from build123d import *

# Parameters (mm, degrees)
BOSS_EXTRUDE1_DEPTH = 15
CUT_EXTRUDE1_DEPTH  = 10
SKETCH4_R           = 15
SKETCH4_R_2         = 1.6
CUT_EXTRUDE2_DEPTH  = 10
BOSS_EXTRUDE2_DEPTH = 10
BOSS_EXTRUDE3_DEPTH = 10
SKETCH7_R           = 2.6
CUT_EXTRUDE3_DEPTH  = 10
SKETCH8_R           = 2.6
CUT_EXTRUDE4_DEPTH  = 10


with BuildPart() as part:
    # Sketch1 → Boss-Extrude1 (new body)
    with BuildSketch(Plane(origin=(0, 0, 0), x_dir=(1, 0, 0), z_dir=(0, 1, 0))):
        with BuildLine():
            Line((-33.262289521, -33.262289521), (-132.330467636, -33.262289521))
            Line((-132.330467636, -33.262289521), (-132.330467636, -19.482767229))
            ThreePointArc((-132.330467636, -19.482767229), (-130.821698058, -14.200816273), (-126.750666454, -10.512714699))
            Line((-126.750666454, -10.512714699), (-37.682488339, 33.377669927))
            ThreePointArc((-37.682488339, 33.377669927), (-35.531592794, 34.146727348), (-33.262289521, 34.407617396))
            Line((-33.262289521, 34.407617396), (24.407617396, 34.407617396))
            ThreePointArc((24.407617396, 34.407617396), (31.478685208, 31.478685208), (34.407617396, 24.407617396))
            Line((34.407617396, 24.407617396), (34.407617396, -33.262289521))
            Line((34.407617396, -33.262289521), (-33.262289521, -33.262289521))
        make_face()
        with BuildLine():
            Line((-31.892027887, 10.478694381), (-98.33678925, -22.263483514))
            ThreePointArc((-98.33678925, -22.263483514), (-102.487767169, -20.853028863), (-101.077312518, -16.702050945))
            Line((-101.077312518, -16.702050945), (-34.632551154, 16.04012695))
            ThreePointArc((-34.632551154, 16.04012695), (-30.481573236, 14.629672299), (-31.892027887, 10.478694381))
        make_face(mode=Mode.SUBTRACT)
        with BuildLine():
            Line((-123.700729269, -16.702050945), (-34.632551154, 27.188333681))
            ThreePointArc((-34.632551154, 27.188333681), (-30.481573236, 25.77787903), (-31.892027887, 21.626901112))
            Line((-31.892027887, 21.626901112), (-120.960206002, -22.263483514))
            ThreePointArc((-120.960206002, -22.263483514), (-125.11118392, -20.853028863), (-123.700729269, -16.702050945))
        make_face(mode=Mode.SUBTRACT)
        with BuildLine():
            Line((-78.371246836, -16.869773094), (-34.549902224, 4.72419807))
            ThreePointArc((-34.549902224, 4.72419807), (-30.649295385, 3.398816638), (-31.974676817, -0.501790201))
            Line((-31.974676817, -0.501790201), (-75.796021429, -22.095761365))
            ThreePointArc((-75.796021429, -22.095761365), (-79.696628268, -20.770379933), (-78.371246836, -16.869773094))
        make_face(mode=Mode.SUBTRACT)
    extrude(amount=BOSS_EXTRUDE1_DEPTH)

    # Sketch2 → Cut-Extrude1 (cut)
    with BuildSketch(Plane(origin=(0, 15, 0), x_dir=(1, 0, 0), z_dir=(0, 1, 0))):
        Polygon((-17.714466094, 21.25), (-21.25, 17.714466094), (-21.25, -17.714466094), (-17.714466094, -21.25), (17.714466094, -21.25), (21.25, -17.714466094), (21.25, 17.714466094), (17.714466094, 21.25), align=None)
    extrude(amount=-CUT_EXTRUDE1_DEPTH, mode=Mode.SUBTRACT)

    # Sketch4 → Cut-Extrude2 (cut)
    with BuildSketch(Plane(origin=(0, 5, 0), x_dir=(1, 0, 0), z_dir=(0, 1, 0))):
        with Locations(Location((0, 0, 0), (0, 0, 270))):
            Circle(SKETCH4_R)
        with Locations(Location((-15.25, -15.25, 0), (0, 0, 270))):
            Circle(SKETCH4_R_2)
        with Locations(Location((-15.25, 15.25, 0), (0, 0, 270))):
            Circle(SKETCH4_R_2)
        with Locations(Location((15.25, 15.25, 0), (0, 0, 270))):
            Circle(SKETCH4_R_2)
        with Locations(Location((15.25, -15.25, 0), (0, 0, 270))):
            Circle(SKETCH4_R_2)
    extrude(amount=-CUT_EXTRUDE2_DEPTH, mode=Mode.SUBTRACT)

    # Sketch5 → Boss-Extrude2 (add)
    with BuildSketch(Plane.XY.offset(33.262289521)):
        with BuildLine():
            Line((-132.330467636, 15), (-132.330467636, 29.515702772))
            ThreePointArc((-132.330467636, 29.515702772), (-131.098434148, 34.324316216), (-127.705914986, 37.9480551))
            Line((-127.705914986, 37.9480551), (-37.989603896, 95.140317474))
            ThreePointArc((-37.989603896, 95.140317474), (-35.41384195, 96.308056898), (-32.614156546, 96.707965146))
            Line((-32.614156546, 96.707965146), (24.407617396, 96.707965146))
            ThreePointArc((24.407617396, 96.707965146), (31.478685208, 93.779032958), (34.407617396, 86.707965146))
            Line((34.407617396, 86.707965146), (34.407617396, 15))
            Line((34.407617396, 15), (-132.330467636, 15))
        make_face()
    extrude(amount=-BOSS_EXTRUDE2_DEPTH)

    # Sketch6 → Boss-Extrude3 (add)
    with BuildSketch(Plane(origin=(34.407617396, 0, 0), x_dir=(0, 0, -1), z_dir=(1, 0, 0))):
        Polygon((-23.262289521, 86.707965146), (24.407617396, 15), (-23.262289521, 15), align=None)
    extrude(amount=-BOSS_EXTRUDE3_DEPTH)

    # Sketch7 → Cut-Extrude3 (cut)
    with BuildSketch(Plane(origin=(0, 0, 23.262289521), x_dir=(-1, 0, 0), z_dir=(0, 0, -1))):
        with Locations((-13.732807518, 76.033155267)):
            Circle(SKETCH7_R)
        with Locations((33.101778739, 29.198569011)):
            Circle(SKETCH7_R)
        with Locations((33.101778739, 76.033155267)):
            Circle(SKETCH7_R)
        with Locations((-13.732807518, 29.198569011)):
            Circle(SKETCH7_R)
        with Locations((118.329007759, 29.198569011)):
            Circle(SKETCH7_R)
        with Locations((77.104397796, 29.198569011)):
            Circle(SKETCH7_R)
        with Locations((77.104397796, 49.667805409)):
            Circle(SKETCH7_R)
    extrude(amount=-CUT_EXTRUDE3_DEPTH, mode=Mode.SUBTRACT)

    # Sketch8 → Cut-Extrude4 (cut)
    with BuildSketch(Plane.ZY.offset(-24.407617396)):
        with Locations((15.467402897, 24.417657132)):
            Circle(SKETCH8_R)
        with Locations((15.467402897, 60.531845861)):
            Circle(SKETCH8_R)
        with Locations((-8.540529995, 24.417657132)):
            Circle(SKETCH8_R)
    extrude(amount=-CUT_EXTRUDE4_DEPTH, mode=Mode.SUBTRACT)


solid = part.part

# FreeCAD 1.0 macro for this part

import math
import FreeCAD as App
import Part
import Sketcher

V = App.Vector

doc = App.newDocument("Part")
body = doc.addObject("PartDesign::Body", "Body")

# Sketch on XZ plane
sketch1 = body.newObject("Sketcher::SketchObject", "Sketch")
sketch1.AttachmentSupport = (doc.getObject("XZ_Plane"), [""])
sketch1.MapMode = "FlatFace"
sketch1.addGeometry([
    Part.LineSegment(V(-132.330468, 19.482767, 0), V(-132.330468, 33.26229, 0)),  # 0
    Part.LineSegment(V(-132.330468, 33.26229, 0), V(34.407617, 33.26229, 0)),  # 1
    Part.LineSegment(V(34.407617, 33.26229, 0), V(34.407617, -24.407617, 0)),  # 2
    Part.ArcOfCircle(Part.Circle(V(24.407617, -24.407617, 0), V(0, 0, 1), 10), math.radians(-90), math.radians(0)),  # 3
    Part.LineSegment(V(24.407617, -34.407617, 0), V(-33.26229, -34.407617, 0)),  # 4
    Part.ArcOfCircle(Part.Circle(V(-33.26229, -24.407617, 0), V(0, 0, 1), 10), math.radians(-116.232829), math.radians(-90)),  # 5
    Part.LineSegment(V(-37.682488, -33.37767, 0), V(-126.750666, 10.512715, 0)),  # 6
    Part.ArcOfCircle(Part.Circle(V(-122.330468, 19.482767, 0), V(0, 0, 1), 10), math.radians(-180), math.radians(-116.232829)),  # 7
    Part.LineSegment(V(-78.371247, 16.869773, 0), V(-34.549902, -4.724198, 0)),  # 8
    Part.ArcOfCircle(Part.Circle(V(-33.26229, -2.111204, 0), V(0, 0, 1), 2.91302), math.radians(-116.232829), math.radians(63.767171)),  # 9
    Part.LineSegment(V(-31.974677, 0.50179, 0), V(-75.796021, 22.095761, 0)),  # 10
    Part.ArcOfCircle(Part.Circle(V(-77.083634, 19.482767, 0), V(0, 0, 1), 2.91302), math.radians(63.767171), math.radians(243.767171)),  # 11
    Part.LineSegment(V(-31.892028, -10.478694, 0), V(-98.336789, 22.263484, 0)),  # 12
    Part.ArcOfCircle(Part.Circle(V(-99.707051, 19.482767, 0), V(0, 0, 1), 3.1), math.radians(63.767171), math.radians(243.767171)),  # 13
    Part.LineSegment(V(-101.077313, 16.702051, 0), V(-34.632551, -16.040127, 0)),  # 14
    Part.ArcOfCircle(Part.Circle(V(-33.26229, -13.259411, 0), V(0, 0, 1), 3.1), math.radians(-116.232829), math.radians(63.767171)),  # 15
    Part.LineSegment(V(-123.700729, 16.702051, 0), V(-34.632551, -27.188334, 0)),  # 16
    Part.ArcOfCircle(Part.Circle(V(-33.26229, -24.407617, 0), V(0, 0, 1), 3.1), math.radians(-116.232829), math.radians(63.767171)),  # 17
    Part.LineSegment(V(-31.892028, -21.626901, 0), V(-120.960206, 22.263484, 0)),  # 18
    Part.ArcOfCircle(Part.Circle(V(-122.330468, 19.482767, 0), V(0, 0, 1), 3.1), math.radians(63.767171), math.radians(243.767171)),  # 19
], False)
sketch1.addConstraint([
    Sketcher.Constraint("Coincident", 0, 2, 1, 1),
    Sketcher.Constraint("Coincident", 1, 2, 2, 1),
    Sketcher.Constraint("Tangent", 2, 2, 3, 2),
    Sketcher.Constraint("Tangent", 3, 1, 4, 1),
    Sketcher.Constraint("Tangent", 4, 2, 5, 2),
    Sketcher.Constraint("Tangent", 5, 1, 6, 1),
    Sketcher.Constraint("Tangent", 6, 2, 7, 2),
    Sketcher.Constraint("Tangent", 7, 1, 0, 1),
    Sketcher.Constraint("Tangent", 8, 2, 9, 1),
    Sketcher.Constraint("Tangent", 9, 2, 10, 1),
    Sketcher.Constraint("Tangent", 10, 2, 11, 1),
    Sketcher.Constraint("Tangent", 11, 2, 8, 1),
    Sketcher.Constraint("Tangent", 12, 2, 13, 1),
    Sketcher.Constraint("Tangent", 13, 2, 14, 1),
    Sketcher.Constraint("Tangent", 14, 2, 15, 1),
    Sketcher.Constraint("Tangent", 15, 2, 12, 1),
    Sketcher.Constraint("Tangent", 16, 2, 17, 1),
    Sketcher.Constraint("Tangent", 17, 2, 18, 1),
    Sketcher.Constraint("Tangent", 18, 2, 19, 1),
    Sketcher.Constraint("Tangent", 19, 2, 16, 1),
    Sketcher.Constraint("Vertical", 0),
    Sketcher.Constraint("Horizontal", 1),
    Sketcher.Constraint("Vertical", 2),
    Sketcher.Constraint("Horizontal", 4),
    Sketcher.Constraint("Coincident", 17, 3, 5, 3),
    Sketcher.Constraint("Coincident", 19, 3, 7, 3),
    Sketcher.Constraint("Equal", 3, 5),
    Sketcher.Constraint("Equal", 5, 7),
    Sketcher.Constraint("Equal", 9, 11),
    Sketcher.Constraint("Equal", 13, 15),
    Sketcher.Constraint("Equal", 15, 17),
    Sketcher.Constraint("Equal", 17, 19),
    Sketcher.Constraint("Parallel", 6, 8),
    Sketcher.Constraint("Parallel", 10, 12),
    Sketcher.Constraint("Horizontal", 7, 3, 11, 3),
    Sketcher.Constraint("Horizontal", 11, 3, 13, 3),
    Sketcher.Constraint("Vertical", 5, 3, 9, 3),
    Sketcher.Constraint("Vertical", 9, 3, 15, 3),
    Sketcher.Constraint("Equal", 4, 2),
    Sketcher.Constraint("Radius", 3, 10.0),
    Sketcher.Constraint("Radius", 13, 3.1),
    Sketcher.Constraint("Radius", 9, 2.91302),
    Sketcher.Constraint("DistanceY", 8, 2, -1, 1, 4.724198),
    Sketcher.Constraint("DistanceY", 17, 2, -1, 1, 21.626901),
    Sketcher.Constraint("DistanceY", 15, 3, 1, 2, 46.5217),
    Sketcher.Constraint("DistanceX", 5, 1, 4, 2, 4.420199),
    Sketcher.Constraint("DistanceY", 15, 3, 9, 2, 13.761201),
    Sketcher.Constraint("Distance", 8, 48.852941),
    Sketcher.Constraint("DistanceX", 5, 3, -1, 1, 33.26229),
])
pad1 = body.newObject("PartDesign::Pad", "Pad")
pad1.Profile = sketch1
pad1.Length = 15
pad1.Reversed = True

# Sketch on XZ plane
sketch2 = body.newObject("Sketcher::SketchObject", "Sketch001")
sketch2.AttachmentSupport = (doc.getObject("XZ_Plane"), [""])
sketch2.MapMode = "FlatFace"
sketch2.AttachmentOffset = App.Placement(V(0, 0, -15), App.Rotation())
sketch2.addGeometry([
    Part.LineSegment(V(-17.714466, -21.25, 0), V(-21.25, -17.714466, 0)),  # 0
    Part.LineSegment(V(-21.25, -17.714466, 0), V(-21.25, 17.714466, 0)),  # 1
    Part.LineSegment(V(-21.25, 17.714466, 0), V(-17.714466, 21.25, 0)),  # 2
    Part.LineSegment(V(-17.714466, 21.25, 0), V(17.714466, 21.25, 0)),  # 3
    Part.LineSegment(V(17.714466, 21.25, 0), V(21.25, 17.714466, 0)),  # 4
    Part.LineSegment(V(21.25, 17.714466, 0), V(21.25, -17.714466, 0)),  # 5
    Part.LineSegment(V(21.25, -17.714466, 0), V(17.714466, -21.25, 0)),  # 6
    Part.LineSegment(V(17.714466, -21.25, 0), V(-17.714466, -21.25, 0)),  # 7
], False)
sketch2.addConstraint([
    Sketcher.Constraint("Coincident", 0, 2, 1, 1),
    Sketcher.Constraint("Coincident", 1, 2, 2, 1),
    Sketcher.Constraint("Coincident", 2, 2, 3, 1),
    Sketcher.Constraint("Coincident", 3, 2, 4, 1),
    Sketcher.Constraint("Coincident", 4, 2, 5, 1),
    Sketcher.Constraint("Coincident", 5, 2, 6, 1),
    Sketcher.Constraint("Coincident", 6, 2, 7, 1),
    Sketcher.Constraint("Coincident", 7, 2, 0, 1),
    Sketcher.Constraint("Vertical", 1),
    Sketcher.Constraint("Horizontal", 3),
    Sketcher.Constraint("Vertical", 5),
    Sketcher.Constraint("Horizontal", 7),
    Sketcher.Constraint("Symmetric", 0, 2, 4, 2, -1, 1),
    Sketcher.Constraint("Symmetric", 2, 2, 6, 2, -1, 1),
    Sketcher.Constraint("Perpendicular", 0, 2),
    Sketcher.Constraint("Perpendicular", 2, 4),
    Sketcher.Constraint("Perpendicular", 4, 6),
    Sketcher.Constraint("Horizontal", 1, 2, 4, 2),
    Sketcher.Constraint("Vertical", 3, 2, 6, 2),
    Sketcher.Constraint("Equal", 7, 1),
    Sketcher.Constraint("Distance", 0, 5.0),
    Sketcher.Constraint("DistanceX", 1, 2, 4, 2, 42.5),
])
pocket1 = body.newObject("PartDesign::Pocket", "Pocket")
pocket1.Profile = sketch2
pocket1.Length = 10
pocket1.Reversed = True

# Sketch on XZ plane
sketch3 = body.newObject("Sketcher::SketchObject", "Sketch002")
sketch3.AttachmentSupport = (doc.getObject("XZ_Plane"), [""])
sketch3.MapMode = "FlatFace"
sketch3.AttachmentOffset = App.Placement(V(0, 0, -5), App.Rotation())
sketch3.addGeometry([
    Part.Circle(V(0, 0, 0), V(0, 0, 1), 15),  # 0
    Part.Circle(V(-15.25, 15.25, 0), V(0, 0, 1), 1.6),  # 1
    Part.Circle(V(-15.25, -15.25, 0), V(0, 0, 1), 1.6),  # 2
    Part.Circle(V(15.25, -15.25, 0), V(0, 0, 1), 1.6),  # 3
    Part.Circle(V(15.25, 15.25, 0), V(0, 0, 1), 1.6),  # 4
], False)
sketch3.addConstraint([
    Sketcher.Constraint("Coincident", 0, 3, -1, 1),
    Sketcher.Constraint("Equal", 1, 2),
    Sketcher.Constraint("Equal", 2, 3),
    Sketcher.Constraint("Equal", 3, 4),
    Sketcher.Constraint("Symmetric", 1, 3, 3, 3, -1, 1),
    Sketcher.Constraint("Symmetric", 2, 3, 4, 3, -1, 1),
    Sketcher.Constraint("Symmetric", 2, 3, 3, 3, -2),
    Sketcher.Constraint("Diameter", 0, 30.0),
    Sketcher.Constraint("Diameter", 1, 3.2),
    Sketcher.Constraint("DistanceY", 2, 3, 1, 3, 30.5),
    Sketcher.Constraint("DistanceX", 2, 3, 3, 3, 30.5),
])
pocket2 = body.newObject("PartDesign::Pocket", "Pocket001")
pocket2.Profile = sketch3
pocket2.Length = 10
pocket2.Reversed = True

# Sketch on XY plane
sketch4 = body.newObject("Sketcher::SketchObject", "Sketch003")
sketch4.AttachmentSupport = (doc.getObject("XY_Plane"), [""])
sketch4.MapMode = "FlatFace"
sketch4.AttachmentOffset = App.Placement(V(0, 0, 33.26229), App.Rotation())
sketch4.addGeometry([
    Part.LineSegment(V(-132.330468, 29.515703, 0), V(-132.330468, 15, 0)),  # 0
    Part.LineSegment(V(-132.330468, 15, 0), V(34.407617, 15, 0)),  # 1
    Part.LineSegment(V(34.407617, 15, 0), V(34.407617, 86.707965, 0)),  # 2
    Part.ArcOfCircle(Part.Circle(V(24.407617, 86.707965, 0), V(0, 0, 1), 10), math.radians(0), math.radians(90)),  # 3
    Part.LineSegment(V(24.407617, 96.707965, 0), V(-32.614157, 96.707965, 0)),  # 4
    Part.ArcOfCircle(Part.Circle(V(-32.614157, 86.707965, 0), V(0, 0, 1), 10), math.radians(90), math.radians(122.516654)),  # 5
    Part.LineSegment(V(-37.989604, 95.140317, 0), V(-127.705915, 37.948055, 0)),  # 6
    Part.ArcOfCircle(Part.Circle(V(-122.330468, 29.515703, 0), V(0, 0, 1), 10), math.radians(122.516654), math.radians(180)),  # 7
], False)
sketch4.addConstraint([
    Sketcher.Constraint("Coincident", 0, 2, 1, 1),
    Sketcher.Constraint("Coincident", 1, 2, 2, 1),
    Sketcher.Constraint("Tangent", 2, 2, 3, 1),
    Sketcher.Constraint("Tangent", 3, 2, 4, 1),
    Sketcher.Constraint("Tangent", 4, 2, 5, 1),
    Sketcher.Constraint("Tangent", 5, 2, 6, 1),
    Sketcher.Constraint("Tangent", 6, 2, 7, 1),
    Sketcher.Constraint("Tangent", 7, 2, 0, 1),
    Sketcher.Constraint("Vertical", 0),
    Sketcher.Constraint("Horizontal", 1),
    Sketcher.Constraint("Vertical", 2),
    Sketcher.Constraint("Horizontal", 4),
    Sketcher.Constraint("Equal", 3, 5),
    Sketcher.Constraint("Equal", 5, 7),
    Sketcher.Constraint("Radius", 3, 10.0),
    Sketcher.Constraint("DistanceY", -1, 1, 0, 2, 15.0),
    Sketcher.Constraint("DistanceX", 1, 1, 1, 2, 166.738085),
    Sketcher.Constraint("DistanceX", 4, 2, 4, 1, 57.021774),
    Sketcher.Constraint("DistanceY", 0, 2, 0, 1, 14.515703),
    Sketcher.Constraint("DistanceY", 2, 1, 2, 2, 71.707965),
    Sketcher.Constraint("DistanceX", -1, 1, 3, 3, 24.407617),
])
pad2 = body.newObject("PartDesign::Pad", "Pad001")
pad2.Profile = sketch4
pad2.Length = 10
pad2.Reversed = True

# Sketch on YZ plane
sketch5 = body.newObject("Sketcher::SketchObject", "Sketch004")
sketch5.AttachmentSupport = (doc.getObject("YZ_Plane"), [""])
sketch5.MapMode = "FlatFace"
sketch5.AttachmentOffset = App.Placement(V(0, 0, 34.407617), App.Rotation())
sketch5.addGeometry([
    Part.LineSegment(V(15, -24.407617, 0), V(86.707965, 23.26229, 0)),
    Part.LineSegment(V(86.707965, 23.26229, 0), V(15, 23.26229, 0)),
    Part.LineSegment(V(15, 23.26229, 0), V(15, -24.407617, 0)),
], False)
sketch5.addConstraint([
    Sketcher.Constraint("Coincident", 0, 2, 1, 1),
    Sketcher.Constraint("Coincident", 1, 2, 2, 1),
    Sketcher.Constraint("Coincident", 2, 2, 0, 1),
    Sketcher.Constraint("Horizontal", 1),
    Sketcher.Constraint("Vertical", 2),
    Sketcher.Constraint("DistanceX", -1, 1, 1, 2, 15.0),
    Sketcher.Constraint("DistanceX", 1, 2, 1, 1, 71.707965),
    Sketcher.Constraint("DistanceY", 2, 2, 2, 1, 47.669907),
    Sketcher.Constraint("DistanceY", -1, 1, 0, 2, 23.26229),
])
pad3 = body.newObject("PartDesign::Pad", "Pad002")
pad3.Profile = sketch5
pad3.Length = 10
pad3.Reversed = True

# Sketch on XY plane
sketch6 = body.newObject("Sketcher::SketchObject", "Sketch005")
sketch6.AttachmentSupport = (doc.getObject("XY_Plane"), [""])
sketch6.MapMode = "FlatFace"
sketch6.AttachmentOffset = App.Placement(V(0, 0, 23.26229), App.Rotation())
sketch6.addGeometry([
    Part.Circle(V(13.732808, 76.033155, 0), V(0, 0, 1), 2.6),  # 0
    Part.Circle(V(-33.101779, 29.198569, 0), V(0, 0, 1), 2.6),  # 1
    Part.Circle(V(-33.101779, 76.033155, 0), V(0, 0, 1), 2.6),  # 2
    Part.Circle(V(13.732808, 29.198569, 0), V(0, 0, 1), 2.6),  # 3
    Part.Circle(V(-118.329008, 29.198569, 0), V(0, 0, 1), 2.6),  # 4
    Part.Circle(V(-77.104398, 29.198569, 0), V(0, 0, 1), 2.6),  # 5
    Part.Circle(V(-77.104398, 49.667805, 0), V(0, 0, 1), 2.6),  # 6
], False)
sketch6.addConstraint([
    Sketcher.Constraint("Equal", 0, 1),
    Sketcher.Constraint("Equal", 1, 2),
    Sketcher.Constraint("Equal", 2, 3),
    Sketcher.Constraint("Equal", 3, 4),
    Sketcher.Constraint("Equal", 4, 5),
    Sketcher.Constraint("Equal", 5, 6),
    Sketcher.Constraint("Horizontal", 0, 3, 2, 3),
    Sketcher.Constraint("Horizontal", 1, 3, 3, 3),
    Sketcher.Constraint("Horizontal", 3, 3, 4, 3),
    Sketcher.Constraint("Horizontal", 4, 3, 5, 3),
    Sketcher.Constraint("Vertical", 1, 3, 2, 3),
    Sketcher.Constraint("Vertical", 0, 3, 3, 3),
    Sketcher.Constraint("Vertical", 5, 3, 6, 3),
    Sketcher.Constraint("Diameter", 0, 5.2),
    Sketcher.Constraint("DistanceX", 1, 3, -1, 1, 33.101779),
    Sketcher.Constraint("DistanceY", -1, 1, 1, 3, 29.198569),
    Sketcher.Constraint("DistanceX", 4, 3, 1, 3, 85.227229),
    Sketcher.Constraint("DistanceX", 4, 3, 5, 3, 41.22461),
    Sketcher.Constraint("DistanceY", 6, 3, 2, 3, 26.36535),
    Sketcher.Constraint("DistanceX", -1, 1, 0, 3, 13.732808),
    Sketcher.Constraint("DistanceY", -1, 1, 0, 3, 76.033155),
])
pocket3 = body.newObject("PartDesign::Pocket", "Pocket002")
pocket3.Profile = sketch6
pocket3.Length = 10
pocket3.Reversed = True

# Sketch on YZ plane
sketch7 = body.newObject("Sketcher::SketchObject", "Sketch006")
sketch7.AttachmentSupport = (doc.getObject("YZ_Plane"), [""])
sketch7.MapMode = "FlatFace"
sketch7.AttachmentOffset = App.Placement(V(0, 0, 24.407617), App.Rotation())
sketch7.addGeometry([
    Part.Circle(V(24.417657, 15.467403, 0), V(0, 0, 1), 2.6),
    Part.Circle(V(60.531846, 15.467403, 0), V(0, 0, 1), 2.6),
    Part.Circle(V(24.417657, -8.54053, 0), V(0, 0, 1), 2.6),
], False)
sketch7.addConstraint([
    Sketcher.Constraint("Equal", 0, 1),
    Sketcher.Constraint("Equal", 1, 2),
    Sketcher.Constraint("Horizontal", 0, 3, 1, 3),
    Sketcher.Constraint("Vertical", 0, 3, 2, 3),
    Sketcher.Constraint("Diameter", 0, 5.2),
    Sketcher.Constraint("DistanceY", 2, 3, -1, 1, 8.54053),
    Sketcher.Constraint("DistanceX", 0, 3, 1, 3, 36.114189),
    Sketcher.Constraint("DistanceX", -1, 1, 0, 3, 24.417657),
    Sketcher.Constraint("DistanceY", -1, 1, 0, 3, 15.467403),
])
pocket4 = body.newObject("PartDesign::Pocket", "Pocket003")
pocket4.Profile = sketch7
pocket4.Length = 10
pocket4.Reversed = True

doc.recompute()
